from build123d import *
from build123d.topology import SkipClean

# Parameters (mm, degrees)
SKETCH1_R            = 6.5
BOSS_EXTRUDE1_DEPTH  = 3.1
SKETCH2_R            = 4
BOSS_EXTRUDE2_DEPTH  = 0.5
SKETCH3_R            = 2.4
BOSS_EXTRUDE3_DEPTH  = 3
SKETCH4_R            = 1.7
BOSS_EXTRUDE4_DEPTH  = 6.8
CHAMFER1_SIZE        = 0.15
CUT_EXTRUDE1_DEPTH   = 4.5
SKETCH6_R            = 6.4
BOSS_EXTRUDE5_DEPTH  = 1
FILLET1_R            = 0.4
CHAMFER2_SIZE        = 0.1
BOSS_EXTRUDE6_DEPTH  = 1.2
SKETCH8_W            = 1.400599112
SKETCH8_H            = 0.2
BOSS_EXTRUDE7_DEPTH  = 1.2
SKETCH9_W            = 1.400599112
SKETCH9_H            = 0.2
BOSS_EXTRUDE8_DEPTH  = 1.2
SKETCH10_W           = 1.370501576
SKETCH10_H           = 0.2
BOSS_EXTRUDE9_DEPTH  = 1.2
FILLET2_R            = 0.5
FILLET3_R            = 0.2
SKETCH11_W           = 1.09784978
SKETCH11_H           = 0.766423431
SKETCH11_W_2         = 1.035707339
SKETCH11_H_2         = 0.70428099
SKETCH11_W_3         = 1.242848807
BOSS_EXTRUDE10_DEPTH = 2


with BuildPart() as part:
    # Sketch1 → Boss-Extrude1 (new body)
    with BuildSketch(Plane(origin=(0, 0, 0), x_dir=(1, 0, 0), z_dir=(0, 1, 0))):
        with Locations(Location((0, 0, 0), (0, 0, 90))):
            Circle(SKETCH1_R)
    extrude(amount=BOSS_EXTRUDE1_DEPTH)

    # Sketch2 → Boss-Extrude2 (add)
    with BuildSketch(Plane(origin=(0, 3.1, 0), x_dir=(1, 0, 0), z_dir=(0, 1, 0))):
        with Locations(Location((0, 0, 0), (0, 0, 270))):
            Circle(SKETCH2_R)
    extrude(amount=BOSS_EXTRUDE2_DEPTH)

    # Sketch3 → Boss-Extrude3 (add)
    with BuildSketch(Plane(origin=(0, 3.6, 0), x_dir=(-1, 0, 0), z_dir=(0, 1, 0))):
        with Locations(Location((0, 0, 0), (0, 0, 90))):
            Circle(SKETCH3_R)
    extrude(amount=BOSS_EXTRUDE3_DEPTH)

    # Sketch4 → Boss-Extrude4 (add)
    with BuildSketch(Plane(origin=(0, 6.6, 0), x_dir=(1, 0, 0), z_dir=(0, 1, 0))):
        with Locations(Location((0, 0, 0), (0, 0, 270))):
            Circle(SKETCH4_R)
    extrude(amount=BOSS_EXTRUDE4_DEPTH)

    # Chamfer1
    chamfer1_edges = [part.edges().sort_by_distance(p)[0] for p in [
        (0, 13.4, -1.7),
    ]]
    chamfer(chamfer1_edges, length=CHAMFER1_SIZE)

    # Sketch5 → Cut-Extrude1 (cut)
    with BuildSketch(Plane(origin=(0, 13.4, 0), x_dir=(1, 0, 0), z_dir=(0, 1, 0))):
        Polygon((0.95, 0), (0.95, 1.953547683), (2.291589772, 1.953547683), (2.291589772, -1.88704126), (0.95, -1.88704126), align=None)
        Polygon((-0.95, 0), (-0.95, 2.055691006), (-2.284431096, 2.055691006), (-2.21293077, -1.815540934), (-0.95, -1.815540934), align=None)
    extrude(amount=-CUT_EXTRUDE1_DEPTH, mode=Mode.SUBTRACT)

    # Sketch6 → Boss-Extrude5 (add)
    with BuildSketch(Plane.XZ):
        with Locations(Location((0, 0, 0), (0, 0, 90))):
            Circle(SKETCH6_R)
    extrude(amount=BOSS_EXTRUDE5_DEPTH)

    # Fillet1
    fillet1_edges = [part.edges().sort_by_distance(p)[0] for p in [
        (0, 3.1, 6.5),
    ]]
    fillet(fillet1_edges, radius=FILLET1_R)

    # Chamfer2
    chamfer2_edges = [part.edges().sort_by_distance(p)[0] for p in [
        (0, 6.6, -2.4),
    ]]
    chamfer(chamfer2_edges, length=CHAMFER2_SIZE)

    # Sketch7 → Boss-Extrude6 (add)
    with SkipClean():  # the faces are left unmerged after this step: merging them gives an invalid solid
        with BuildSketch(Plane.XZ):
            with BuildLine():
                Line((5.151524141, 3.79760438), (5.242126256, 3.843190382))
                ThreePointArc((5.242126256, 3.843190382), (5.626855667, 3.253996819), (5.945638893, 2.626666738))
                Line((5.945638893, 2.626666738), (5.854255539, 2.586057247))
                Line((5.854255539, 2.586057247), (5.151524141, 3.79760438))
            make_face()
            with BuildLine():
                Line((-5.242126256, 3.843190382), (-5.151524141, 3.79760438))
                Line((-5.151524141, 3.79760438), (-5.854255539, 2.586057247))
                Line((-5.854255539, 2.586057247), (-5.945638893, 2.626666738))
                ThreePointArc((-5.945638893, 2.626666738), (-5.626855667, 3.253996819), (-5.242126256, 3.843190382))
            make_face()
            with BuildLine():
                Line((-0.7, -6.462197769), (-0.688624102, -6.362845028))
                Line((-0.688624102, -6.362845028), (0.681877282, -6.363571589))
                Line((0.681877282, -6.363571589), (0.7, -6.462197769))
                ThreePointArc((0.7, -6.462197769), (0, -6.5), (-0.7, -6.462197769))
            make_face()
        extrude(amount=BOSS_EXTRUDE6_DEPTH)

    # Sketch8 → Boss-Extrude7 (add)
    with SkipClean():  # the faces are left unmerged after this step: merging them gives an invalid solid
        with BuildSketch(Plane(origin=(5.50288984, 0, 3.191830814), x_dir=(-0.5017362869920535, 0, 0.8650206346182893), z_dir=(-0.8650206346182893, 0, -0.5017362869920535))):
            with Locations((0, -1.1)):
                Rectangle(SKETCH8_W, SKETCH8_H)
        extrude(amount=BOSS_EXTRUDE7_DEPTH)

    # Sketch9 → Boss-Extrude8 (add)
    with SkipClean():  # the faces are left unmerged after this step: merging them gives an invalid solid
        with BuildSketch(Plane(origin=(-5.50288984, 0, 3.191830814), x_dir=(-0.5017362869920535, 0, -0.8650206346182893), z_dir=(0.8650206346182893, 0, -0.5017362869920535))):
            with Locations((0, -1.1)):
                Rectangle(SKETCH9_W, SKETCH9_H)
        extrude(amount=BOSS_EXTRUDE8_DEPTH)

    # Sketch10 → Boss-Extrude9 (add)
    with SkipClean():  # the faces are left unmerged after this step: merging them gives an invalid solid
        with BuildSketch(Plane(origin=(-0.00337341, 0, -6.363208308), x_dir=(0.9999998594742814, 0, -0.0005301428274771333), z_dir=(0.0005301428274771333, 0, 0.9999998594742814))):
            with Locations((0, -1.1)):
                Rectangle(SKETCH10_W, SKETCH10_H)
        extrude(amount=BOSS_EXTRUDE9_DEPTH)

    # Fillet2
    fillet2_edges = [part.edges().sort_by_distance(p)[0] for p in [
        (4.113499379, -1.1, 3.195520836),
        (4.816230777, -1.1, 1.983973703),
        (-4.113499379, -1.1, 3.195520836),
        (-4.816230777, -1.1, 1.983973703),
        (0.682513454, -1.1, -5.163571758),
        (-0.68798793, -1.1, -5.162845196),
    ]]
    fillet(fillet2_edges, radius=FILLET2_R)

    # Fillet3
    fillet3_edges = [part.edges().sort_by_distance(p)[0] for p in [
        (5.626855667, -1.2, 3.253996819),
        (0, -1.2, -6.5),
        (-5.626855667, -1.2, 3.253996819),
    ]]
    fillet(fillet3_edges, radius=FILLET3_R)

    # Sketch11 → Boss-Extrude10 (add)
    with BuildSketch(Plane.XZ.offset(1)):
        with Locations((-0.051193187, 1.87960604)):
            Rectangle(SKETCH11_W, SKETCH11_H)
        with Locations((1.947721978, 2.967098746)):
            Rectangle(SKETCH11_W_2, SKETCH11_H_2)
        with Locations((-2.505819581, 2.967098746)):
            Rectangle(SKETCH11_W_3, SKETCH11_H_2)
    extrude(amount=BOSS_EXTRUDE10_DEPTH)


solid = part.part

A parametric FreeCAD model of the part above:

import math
import FreeCAD as App
import Part
import Sketcher
from FreeCAD import Vector
Q = App.Units.Quantity


def edges_at(feature, points):
    """Names of the edges that pass closest to the given points."""
    edges = feature.Shape.Edges
    near = lambda p: min(range(len(edges)), key=lambda i: edges[i].distToShape(Part.Vertex(*p))[0])
    return sorted({f"Edge{near(p) + 1}" for p in points})

doc = App.newDocument("Part")
body = doc.addObject("PartDesign::Body", "Body")

sketch1 = doc.addObject("Sketcher::SketchObject", "Sketch")
body.addObject(sketch1)
sketch1.AttachmentSupport = (doc.XZ_Plane, [""])
sketch1.MapMode = "FlatFace"
sketch1.addGeometry(Part.Circle(Vector(0, 0, 0), Vector(0, 0, 1), 6), False)
sketch1.addConstraint([
    Sketcher.Constraint("Coincident", 0, 3, -1, 1),
    Sketcher.Constraint("Diameter", 0, Q("13 mm")),
])
pad1 = doc.addObject("PartDesign::Pad", "Pad")
body.addObject(pad1)
pad1.Profile = sketch1
pad1.Length = 3.1
pad1.Reversed = True

sketch2 = doc.addObject("Sketcher::SketchObject", "Sketch001")
body.addObject(sketch2)
sketch2.AttachmentSupport = (doc.XZ_Plane, [""])
sketch2.MapMode = "FlatFace"
sketch2.AttachmentOffset = App.Placement(Vector(0, 0, -3.1), App.Rotation())
sketch2.addGeometry(Part.Circle(Vector(0, 0, 0), Vector(0, 0, 1), 4), False)
sketch2.addConstraint([
    Sketcher.Constraint("Coincident", 0, 3, -1, 1),
    Sketcher.Constraint("Diameter", 0, Q("8 mm")),
])
pad2 = doc.addObject("PartDesign::Pad", "Pad001")
body.addObject(pad2)
pad2.Profile = sketch2
pad2.Length = 0.5
pad2.Reversed = True

sketch3 = doc.addObject("Sketcher::SketchObject", "Sketch002")
body.addObject(sketch3)
sketch3.AttachmentSupport = (doc.XZ_Plane, [""])
sketch3.MapMode = "FlatFace"
sketch3.AttachmentOffset = App.Placement(Vector(0, 0, -3.6), App.Rotation())
sketch3.addGeometry(Part.Circle(Vector(0, 0, 0), Vector(0, 0, 1), 2.4), False)
sketch3.addConstraint([
    Sketcher.Constraint("Coincident", 0, 3, -1, 1),
    Sketcher.Constraint("Diameter", 0, Q("4.8 mm")),
])
pad3 = doc.addObject("PartDesign::Pad", "Pad002")
body.addObject(pad3)
pad3.Profile = sketch3
pad3.Length = 3
pad3.Reversed = True

sketch4 = doc.addObject("Sketcher::SketchObject", "Sketch003")
body.addObject(sketch4)
sketch4.AttachmentSupport = (doc.XZ_Plane, [""])
sketch4.MapMode = "FlatFace"
sketch4.AttachmentOffset = App.Placement(Vector(0, 0, -6.6), App.Rotation())
sketch4.addGeometry(Part.Circle(Vector(0, 0, 0), Vector(0, 0, 1), 1.7), False)
sketch4.addConstraint([
    Sketcher.Constraint("Coincident", 0, 3, -1, 1),
    Sketcher.Constraint("Diameter", 0, Q("3.4 mm")),
])
pad4 = doc.addObject("PartDesign::Pad", "Pad003")
body.addObject(pad4)
pad4.Profile = sketch4
pad4.Length = 6.8
pad4.Reversed = True
doc.recompute()

chamfer = doc.addObject("PartDesign::Chamfer", "Chamfer")
body.addObject(chamfer)
chamfer.Base = (pad4, edges_at(pad4, [(0, 13.4, -1.7)]))
chamfer.Size = 0.15

sketch5 = doc.addObject("Sketcher::SketchObject", "Sketch004")
body.addObject(sketch5)
sketch5.AttachmentSupport = (doc.XZ_Plane, [""])
sketch5.MapMode = "FlatFace"
sketch5.AttachmentOffset = App.Placement(Vector(0, 0, -13.4), App.Rotation())
sketch5.addGeometry([
    Part.LineSegment(Vector(0.9, -2, 0), Vector(0.9, 1.9, 0)),
    Part.LineSegment(Vector(0.9, 1.9, 0), Vector(2.3, 1.9, 0)),
    Part.LineSegment(Vector(2.3, 1.9, 0), Vector(2.3, -2, 0)),
    Part.LineSegment(Vector(2.3, -2, 0), Vector(0.9, -2, 0)),
    Part.LineSegment(Vector(-0.9, -2.1, 0), Vector(-2.3, -2.1, 0)),
    Part.LineSegment(Vector(-2.3, -2.1, 0), Vector(-2.2, 1.8, 0)),
    Part.LineSegment(Vector(-2.2, 1.8, 0), Vector(-0.9, 1.8, 0)),
    Part.LineSegment(Vector(-0.9, 1.8, 0), Vector(-0.9, -2.1, 0)),
], False)
sketch5.addConstraint([
    Sketcher.Constraint("Coincident", 0, 2, 1, 1),
    Sketcher.Constraint("Coincident", 1, 2, 2, 1),
    Sketcher.Constraint("Coincident", 2, 2, 3, 1),
    Sketcher.Constraint("Coincident", 3, 2, 0, 1),
    Sketcher.Constraint("Coincident", 4, 2, 5, 1),
    Sketcher.Constraint("Coincident", 5, 2, 6, 1),
    Sketcher.Constraint("Coincident", 6, 2, 7, 1),
    Sketcher.Constraint("Coincident", 7, 2, 4, 1),
    Sketcher.Constraint("Vertical", 0),
    Sketcher.Constraint("Horizontal", 1),
    Sketcher.Constraint("Vertical", 2),
    Sketcher.Constraint("Horizontal", 3),
    Sketcher.Constraint("Horizontal", 4),
    Sketcher.Constraint("Horizontal", 6),
    Sketcher.Constraint("Vertical", 7),
    Sketcher.Constraint("DistanceX", 6, 2, 0, 2, Q("1.9 mm")),
    Sketcher.Constraint("DistanceX", -1, 1, 0, 2, Q("0.95 mm")),
    Sketcher.Constraint("DistanceX", 1, 1, 1, 2, Q("1.34159 mm")),
    Sketcher.Constraint("DistanceX", 4, 2, 4, 1, Q("1.334431 mm")),
    Sketcher.Constraint("DistanceX", 6, 1, 6, 2, Q("1.262931 mm")),
    Sketcher.Constraint("DistanceY", 0, 1, 0, 2, Q("3.840589 mm")),
    Sketcher.Constraint("DistanceY", 7, 2, 7, 1, Q("3.871232 mm")),
    Sketcher.Constraint("DistanceY", 5, 2, 0, 2, Q("0.0715 mm")),
    Sketcher.Constraint("DistanceY", -1, 1, 0, 2, Q("1.887041 mm")),
])
pocket1 = doc.addObject("PartDesign::Pocket", "Pocket")
body.addObject(pocket1)
pocket1.Profile = sketch5
pocket1.Length = 4.5
pocket1.Reversed = True

sketch6 = doc.addObject("Sketcher::SketchObject", "Sketch005")
body.addObject(sketch6)
sketch6.AttachmentSupport = (doc.XZ_Plane, [""])
sketch6.MapMode = "FlatFace"
sketch6.addGeometry(Part.Circle(Vector(0, 0, 0), Vector(0, 0, 1), 6), False)
sketch6.addConstraint([
    Sketcher.Constraint("Coincident", 0, 3, -1, 1),
    Sketcher.Constraint("Diameter", 0, Q("12.8 mm")),
])
pad5 = doc.addObject("PartDesign::Pad", "Pad004")
body.addObject(pad5)
pad5.Profile = sketch6
pad5.Length = 1
doc.recompute()

fillet = doc.addObject("PartDesign::Fillet", "Fillet")
body.addObject(fillet)
fillet.Base = (pad5, edges_at(pad5, [(0, 3.1, 6.5)]))
fillet.Radius = 0.4
doc.recompute()

chamfer2 = doc.addObject("PartDesign::Chamfer", "Chamfer001")
body.addObject(chamfer2)
chamfer2.Base = (fillet, edges_at(fillet, [(0, 6.6, -2.4)]))
chamfer2.Size = 0.1

sketch7 = doc.addObject("Sketcher::SketchObject", "Sketch006")
body.addObject(sketch7)
sketch7.AttachmentSupport = (doc.XZ_Plane, [""])
sketch7.MapMode = "FlatFace"
sketch7.addGeometry([
    Part.LineSegment(Vector(5.24, 3.84, 0), Vector(5.15, 3.8, 0)),
    Part.LineSegment(Vector(5.15, 3.8, 0), Vector(5.85, 2.59, 0)),
    Part.LineSegment(Vector(5.85, 2.59, 0), Vector(5.95, 2.63, 0)),
    Part.ArcOfCircle(Part.Circle(Vector(0, 0, 0), Vector(0, 0, 1), 6.5), math.radians(23.83), math.radians(36.25)),
    Part.LineSegment(Vector(-5.15, 3.8, 0), Vector(-5.24, 3.84, 0)),
    Part.ArcOfCircle(Part.Circle(Vector(0, 0, 0), Vector(0, 0, 1), 6.5), math.radians(143.75), math.radians(156.17)),
    Part.LineSegment(Vector(-5.95, 2.63, 0), Vector(-5.85, 2.59, 0)),
    Part.LineSegment(Vector(-5.85, 2.59, 0), Vector(-5.15, 3.8, 0)),
    Part.LineSegment(Vector(-0.69, -6.36, 0), Vector(-0.7, -6.46, 0)),
    Part.ArcOfCircle(Part.Circle(Vector(0, 0, 0), Vector(0, 0, 1), 6.5), math.radians(-96.18), math.radians(-83.82)),
    Part.LineSegment(Vector(0.7, -6.46, 0), Vector(0.68, -6.36, 0)),
    Part.LineSegment(Vector(0.68, -6.36, 0), Vector(-0.69, -6.36, 0)),
], False)
sketch7.addConstraint([
    Sketcher.Constraint("Coincident", 0, 2, 1, 1),
    Sketcher.Constraint("Coincident", 1, 2, 2, 1),
    Sketcher.Constraint("Coincident", 2, 2, 3, 1),
    Sketcher.Constraint("Coincident", 3, 2, 0, 1),
    Sketcher.Constraint("Coincident", 4, 2, 5, 1),
    Sketcher.Constraint("Coincident", 5, 2, 6, 1),
    Sketcher.Constraint("Coincident", 6, 2, 7, 1),
    Sketcher.Constraint("Coincident", 7, 2, 4, 1),
    Sketcher.Constraint("Coincident", 8, 2, 9, 1),
    Sketcher.Constraint("Coincident", 9, 2, 10, 1),
    Sketcher.Constraint("Coincident", 10, 2, 11, 1),
    Sketcher.Constraint("Coincident", 11, 2, 8, 1),
    Sketcher.Constraint("Coincident", 3, 3, -1, 1),
    Sketcher.Constraint("Coincident", 5, 3, -1, 1),
    Sketcher.Constraint("Coincident", 9, 3, -1, 1),
    Sketcher.Constraint("Equal", 3, 5),
    Sketcher.Constraint("Equal", 5, 9),
    Sketcher.Constraint("Symmetric", 1, 2, 6, 2, -2),
    Sketcher.Constraint("Symmetric", 0, 2, 7, 2, -2),
    Sketcher.Constraint("Horizontal", 3, 2, 4, 2),
    Sketcher.Constraint("Horizontal", 2, 2, 5, 2),
    Sketcher.Constraint("Horizontal", 8, 2, 9, 2),
    Sketcher.Constraint("Equal", 6, 8),
    Sketcher.Constraint("Radius", 3, Q("6.5 mm")),
    Sketcher.Constraint("Distance", 2, Q("0.1 mm")),
    Sketcher.Constraint("DistanceX", 8, 2, -1, 1, Q("0.7 mm")),
    Sketcher.Constraint("Distance", 1, Q("1.400599 mm")),
    Sketcher.Constraint("Distance", 11, Q("1.370502 mm")),
    Sketcher.Constraint("DistanceX", -1, 1, 2, 2, Q("5.945639 mm")),
    Sketcher.Constraint("DistanceY", -1, 1, 3, 2, Q("3.84319 mm")),
    Sketcher.Constraint("DistanceY", 10, 2, -1, 1, Q("6.363572 mm")),
    Sketcher.Constraint("DistanceX", 0, 2, 1, 2, Q("0.702731 mm")),
    Sketcher.Constraint("DistanceY", 1, 2, 2, 2, Q("0.040609 mm")),
    Sketcher.Constraint("Distance", 10, Q("0.100277 mm")),
])
pad6 = doc.addObject("PartDesign::Pad", "Pad005")
body.addObject(pad6)
pad6.Profile = sketch7
pad6.Length = 1.2

sketch8 = doc.addObject("Sketcher::SketchObject", "Sketch007")
body.addObject(sketch8)
sketch8.Placement = App.Placement(Vector(5.50289, 0, 3.191831), App.Rotation(Vector(-0.501736287, 0, 0.865020635), Vector(0, 1.000000001, 0), Vector(-0.865020635, 0, -0.501736287), "ZXY"))
sketch8.addGeometry([
    Part.LineSegment(Vector(-0.7, -1, 0), Vector(-0.7, -1.2, 0)),
    Part.LineSegment(Vector(-0.7, -1.2, 0), Vector(0.7, -1.2, 0)),
    Part.LineSegment(Vector(0.7, -1.2, 0), Vector(0.7, -1, 0)),
    Part.LineSegment(Vector(0.7, -1, 0), Vector(-0.7, -1, 0)),
], False)
sketch8.addConstraint([
    Sketcher.Constraint("Coincident", 0, 2, 1, 1),
    Sketcher.Constraint("Coincident", 1, 2, 2, 1),
    Sketcher.Constraint("Coincident", 2, 2, 3, 1),
    Sketcher.Constraint("Coincident", 3, 2, 0, 1),
    Sketcher.Constraint("Vertical", 0),
    Sketcher.Constraint("Horizontal", 1),
    Sketcher.Constraint("Vertical", 2),
    Sketcher.Constraint("Horizontal", 3),
    Sketcher.Constraint("DistanceY", 0, 2, 0, 1, Q("0.2 mm")),
    Sketcher.Constraint("DistanceY", 2, 2, -1, 1, Q("1 mm")),
    Sketcher.Constraint("DistanceX", 1, 1, 1, 2, Q("1.400599 mm")),
    Sketcher.Constraint("DistanceX", 0, 2, -1, 1, Q("0.7003 mm")),
])
pad7 = doc.addObject("PartDesign::Pad", "Pad006")
body.addObject(pad7)
pad7.Profile = sketch8
pad7.Length = 1.2

sketch9 = doc.addObject("Sketcher::SketchObject", "Sketch008")
body.addObject(sketch9)
sketch9.Placement = App.Placement(Vector(-5.50289, 0, 3.191831), App.Rotation(Vector(-0.501736287, 0, -0.865020635), Vector(0, 1.000000001, 0), Vector(0.865020635, 0, -0.501736287), "ZXY"))
sketch9.addGeometry([
    Part.LineSegment(Vector(-0.7, -1, 0), Vector(-0.7, -1.2, 0)),
    Part.LineSegment(Vector(-0.7, -1.2, 0), Vector(0.7, -1.2, 0)),
    Part.LineSegment(Vector(0.7, -1.2, 0), Vector(0.7, -1, 0)),
    Part.LineSegment(Vector(0.7, -1, 0), Vector(-0.7, -1, 0)),
], False)
sketch9.addConstraint([
    Sketcher.Constraint("Coincident", 0, 2, 1, 1),
    Sketcher.Constraint("Coincident", 1, 2, 2, 1),
    Sketcher.Constraint("Coincident", 2, 2, 3, 1),
    Sketcher.Constraint("Coincident", 3, 2, 0, 1),
    Sketcher.Constraint("Vertical", 0),
    Sketcher.Constraint("Horizontal", 1),
    Sketcher.Constraint("Vertical", 2),
    Sketcher.Constraint("Horizontal", 3),
    Sketcher.Constraint("DistanceY", 0, 2, 0, 1, Q("0.2 mm")),
    Sketcher.Constraint("DistanceY", 2, 2, -1, 1, Q("1 mm")),
    Sketcher.Constraint("DistanceX", 1, 1, 1, 2, Q("1.400599 mm")),
    Sketcher.Constraint("DistanceX", 0, 2, -1, 1, Q("0.7003 mm")),
])
pad8 = doc.addObject("PartDesign::Pad", "Pad007")
body.addObject(pad8)
pad8.Profile = sketch9
pad8.Length = 1.2

sketch10 = doc.addObject("Sketcher::SketchObject", "Sketch009")
body.addObject(sketch10)
sketch10.Placement = App.Placement(Vector(-0.003373, 0, -6.363208), App.Rotation(Vector(0.999999859, 0, -0.000530143), Vector(0, 0.999999999, 0), Vector(0.000530143, 0, 0.999999859), "ZXY"))
sketch10.addGeometry([
    Part.LineSegment(Vector(-0.69, -1, 0), Vector(-0.69, -1.2, 0)),
    Part.LineSegment(Vector(-0.69, -1.2, 0), Vector(0.69, -1.2, 0)),
    Part.LineSegment(Vector(0.69, -1.2, 0), Vector(0.69, -1, 0)),
    Part.LineSegment(Vector(0.69, -1, 0), Vector(-0.69, -1, 0)),
], False)
sketch10.addConstraint([
    Sketcher.Constraint("Coincident", 0, 2, 1, 1),
    Sketcher.Constraint("Coincident", 1, 2, 2, 1),
    Sketcher.Constraint("Coincident", 2, 2, 3, 1),
    Sketcher.Constraint("Coincident", 3, 2, 0, 1),
    Sketcher.Constraint("Vertical", 0),
    Sketcher.Constraint("Horizontal", 1),
    Sketcher.Constraint("Vertical", 2),
    Sketcher.Constraint("Horizontal", 3),
    Sketcher.Constraint("DistanceY", 0, 2, 0, 1, Q("0.2 mm")),
    Sketcher.Constraint("DistanceY", 2, 2, -1, 1, Q("1 mm")),
    Sketcher.Constraint("DistanceX", 1, 1, 1, 2, Q("1.370502 mm")),
    Sketcher.Constraint("DistanceX", 0, 2, -1, 1, Q("0.685251 mm")),
])
pad9 = doc.addObject("PartDesign::Pad", "Pad008")
body.addObject(pad9)
pad9.Profile = sketch10
pad9.Length = 1.2
doc.recompute()

fillet2 = doc.addObject("PartDesign::Fillet", "Fillet001")
body.addObject(fillet2)
fillet2.Base = (pad9, edges_at(pad9, [
    (4.113, -1.1, 3.196),
    (4.816, -1.1, 1.984),
    (-4.113, -1.1, 3.196),
    (-4.816, -1.1, 1.984),
    (0.683, -1.1, -5.164),
    (-0.688, -1.1, -5.163),
]))
fillet2.Radius = 0.5
doc.recompute()

fillet3 = doc.addObject("PartDesign::Fillet", "Fillet002")
body.addObject(fillet3)
fillet3.Base = (fillet2, edges_at(fillet2, [(5.627, -1.2, 3.254), (0, -1.2, -6.5), (-5.627, -1.2, 3.254)]))
fillet3.Radius = 0.2

sketch11 = doc.addObject("Sketcher::SketchObject", "Sketch010")
body.addObject(sketch11)
sketch11.AttachmentSupport = (doc.XZ_Plane, [""])
sketch11.MapMode = "FlatFace"
sketch11.AttachmentOffset = App.Placement(Vector(0, 0, 1), App.Rotation())
sketch11.addGeometry([
    Part.LineSegment(Vector(-0.6, 2.3, 0), Vector(-0.6, 1.5, 0)),
    Part.LineSegment(Vector(-0.6, 1.5, 0), Vector(0.5, 1.5, 0)),
    Part.LineSegment(Vector(0.5, 1.5, 0), Vector(0.5, 2.3, 0)),
    Part.LineSegment(Vector(0.5, 2.3, 0), Vector(-0.6, 2.3, 0)),
    Part.LineSegment(Vector(1.4, 3.3, 0), Vector(1.4, 2.6, 0)),
    Part.LineSegment(Vector(1.4, 2.6, 0), Vector(2.5, 2.6, 0)),
    Part.LineSegment(Vector(2.5, 2.6, 0), Vector(2.5, 3.3, 0)),
    Part.LineSegment(Vector(2.5, 3.3, 0), Vector(1.4, 3.3, 0)),
    Part.LineSegment(Vector(-3.1, 3.3, 0), Vector(-3.1, 2.6, 0)),
    Part.LineSegment(Vector(-3.1, 2.6, 0), Vector(-1.9, 2.6, 0)),
    Part.LineSegment(Vector(-1.9, 2.6, 0), Vector(-1.9, 3.3, 0)),
    Part.LineSegment(Vector(-1.9, 3.3, 0), Vector(-3.1, 3.3, 0)),
], False)
sketch11.addConstraint([
    Sketcher.Constraint("Coincident", 0, 2, 1, 1),
    Sketcher.Constraint("Coincident", 1, 2, 2, 1),
    Sketcher.Constraint("Coincident", 2, 2, 3, 1),
    Sketcher.Constraint("Coincident", 3, 2, 0, 1),
    Sketcher.Constraint("Coincident", 4, 2, 5, 1),
    Sketcher.Constraint("Coincident", 5, 2, 6, 1),
    Sketcher.Constraint("Coincident", 6, 2, 7, 1),
    Sketcher.Constraint("Coincident", 7, 2, 4, 1),
    Sketcher.Constraint("Coincident", 8, 2, 9, 1),
    Sketcher.Constraint("Coincident", 9, 2, 10, 1),
    Sketcher.Constraint("Coincident", 10, 2, 11, 1),
    Sketcher.Constraint("Coincident", 11, 2, 8, 1),
    Sketcher.Constraint("Vertical", 0),
    Sketcher.Constraint("Horizontal", 1),
    Sketcher.Constraint("Vertical", 2),
    Sketcher.Constraint("Horizontal", 3),
    Sketcher.Constraint("Vertical", 4),
    Sketcher.Constraint("Horizontal", 5),
    Sketcher.Constraint("Vertical", 6),
    Sketcher.Constraint("Horizontal", 7),
    Sketcher.Constraint("Vertical", 8),
    Sketcher.Constraint("Horizontal", 9),
    Sketcher.Constraint("Vertical", 10),
    Sketcher.Constraint("Horizontal", 11),
    Sketcher.Constraint("Horizontal", 5, 2, 8, 2),
    Sketcher.Constraint("Horizontal", 7, 2, 10, 2),
    Sketcher.Constraint("DistanceX", 1, 1, 1, 2, Q("1.09785 mm")),
    Sketcher.Constraint("DistanceX", 9, 1, 9, 2, Q("1.242849 mm")),
    Sketcher.Constraint("DistanceY", 4, 2, 4, 1, Q("0.704281 mm")),
    Sketcher.Constraint("DistanceX", 5, 1, 5, 2, Q("1.035707 mm")),
    Sketcher.Constraint("DistanceY", 0, 2, 0, 1, Q("0.766423 mm")),
    Sketcher.Constraint("DistanceX", 0, 2, -1, 1, Q("0.600118 mm")),
    Sketcher.Constraint("DistanceX", -1, 1, 4, 2, Q("1.429868 mm")),
    Sketcher.Constraint("DistanceY", -1, 1, 4, 2, Q("2.614958 mm")),
    Sketcher.Constraint("DistanceY", 2, 2, 4, 2, Q("0.35214 mm")),
    Sketcher.Constraint("DistanceX", 8, 2, -1, 1, Q("3.127244 mm")),
])
pad10 = doc.addObject("PartDesign::Pad", "Pad009")
body.addObject(pad10)
pad10.Profile = sketch11
pad10.Length = 2

doc.recompute()
